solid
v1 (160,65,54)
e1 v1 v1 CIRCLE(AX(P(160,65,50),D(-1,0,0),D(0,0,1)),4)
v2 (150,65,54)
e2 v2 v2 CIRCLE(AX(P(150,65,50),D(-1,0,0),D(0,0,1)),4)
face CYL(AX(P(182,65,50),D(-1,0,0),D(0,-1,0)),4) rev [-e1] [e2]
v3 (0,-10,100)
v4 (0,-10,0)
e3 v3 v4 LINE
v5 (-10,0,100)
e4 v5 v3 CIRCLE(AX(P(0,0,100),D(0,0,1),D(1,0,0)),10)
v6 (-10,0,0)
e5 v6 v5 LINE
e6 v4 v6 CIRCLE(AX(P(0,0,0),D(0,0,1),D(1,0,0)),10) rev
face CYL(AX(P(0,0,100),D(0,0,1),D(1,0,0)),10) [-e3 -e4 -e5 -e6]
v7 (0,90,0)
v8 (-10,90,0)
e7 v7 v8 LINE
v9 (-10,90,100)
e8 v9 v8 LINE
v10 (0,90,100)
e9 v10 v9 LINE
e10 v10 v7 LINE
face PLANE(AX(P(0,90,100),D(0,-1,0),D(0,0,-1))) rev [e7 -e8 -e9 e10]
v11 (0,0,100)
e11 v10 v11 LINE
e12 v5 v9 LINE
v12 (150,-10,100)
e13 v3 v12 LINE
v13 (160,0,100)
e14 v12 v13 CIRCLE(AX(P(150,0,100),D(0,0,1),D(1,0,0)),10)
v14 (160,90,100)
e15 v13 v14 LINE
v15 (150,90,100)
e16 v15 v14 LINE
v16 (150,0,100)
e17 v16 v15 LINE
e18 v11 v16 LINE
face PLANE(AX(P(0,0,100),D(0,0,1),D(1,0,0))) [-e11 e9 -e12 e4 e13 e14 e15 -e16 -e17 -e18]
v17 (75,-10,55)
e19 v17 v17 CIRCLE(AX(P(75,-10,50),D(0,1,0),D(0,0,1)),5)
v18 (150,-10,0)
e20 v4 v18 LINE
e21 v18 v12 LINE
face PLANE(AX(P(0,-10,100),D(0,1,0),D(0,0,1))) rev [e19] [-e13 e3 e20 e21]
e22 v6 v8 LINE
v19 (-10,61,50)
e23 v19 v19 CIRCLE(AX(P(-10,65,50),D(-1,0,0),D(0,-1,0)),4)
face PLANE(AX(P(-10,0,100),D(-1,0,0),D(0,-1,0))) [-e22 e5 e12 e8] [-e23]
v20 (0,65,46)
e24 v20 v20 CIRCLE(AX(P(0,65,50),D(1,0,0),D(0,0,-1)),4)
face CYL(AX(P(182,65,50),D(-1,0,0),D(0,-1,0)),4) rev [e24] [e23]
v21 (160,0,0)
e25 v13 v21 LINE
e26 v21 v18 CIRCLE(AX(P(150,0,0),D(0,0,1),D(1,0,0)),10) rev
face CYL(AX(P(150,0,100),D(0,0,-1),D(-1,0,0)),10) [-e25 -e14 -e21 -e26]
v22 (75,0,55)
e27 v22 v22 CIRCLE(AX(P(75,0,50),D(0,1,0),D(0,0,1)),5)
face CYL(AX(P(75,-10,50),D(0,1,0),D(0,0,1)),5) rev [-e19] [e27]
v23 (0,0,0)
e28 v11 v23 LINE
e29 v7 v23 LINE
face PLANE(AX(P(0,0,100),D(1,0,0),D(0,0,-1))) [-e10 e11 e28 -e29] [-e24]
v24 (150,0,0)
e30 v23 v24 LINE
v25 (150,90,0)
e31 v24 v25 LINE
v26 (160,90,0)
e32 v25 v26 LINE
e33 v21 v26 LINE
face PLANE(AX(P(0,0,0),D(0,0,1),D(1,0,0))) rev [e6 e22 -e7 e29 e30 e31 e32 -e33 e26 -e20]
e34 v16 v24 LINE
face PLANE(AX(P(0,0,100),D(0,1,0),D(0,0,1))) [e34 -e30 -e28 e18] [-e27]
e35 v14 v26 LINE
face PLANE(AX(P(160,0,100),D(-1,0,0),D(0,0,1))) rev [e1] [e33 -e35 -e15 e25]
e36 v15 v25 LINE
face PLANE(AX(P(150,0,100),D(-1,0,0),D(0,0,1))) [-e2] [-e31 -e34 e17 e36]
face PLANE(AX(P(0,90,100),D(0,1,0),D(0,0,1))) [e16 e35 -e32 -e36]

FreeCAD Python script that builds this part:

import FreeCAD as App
import Part
import Sketcher
from FreeCAD import Vector


def edges_at(feature, points):
    """Names of the edges that pass closest to the given points."""
    edges = feature.Shape.Edges
    near = lambda p: min(range(len(edges)), key=lambda i: edges[i].distToShape(Part.Vertex(*p))[0])
    return sorted({f"Edge{near(p) + 1}" for p in points})

doc = App.newDocument("Part")
params = doc.addObject("Spreadsheet::Sheet", "Params")
for row, (alias, value) in enumerate([
    ("sketch1_width", "150 mm"),
    ("sketch1_width2", "10 mm"),
    ("sketch1_height", "90 mm"),
    ("sketch1_height2", "100 mm"),
    ("pad1_length", "100 mm"),
    ("sketch2_diameter", "10 mm"),
    ("pocket1_length", "10 mm"),
    ("fillet_radius", "10 mm"),
    ("sketch3_diameter", "8 mm"),
    ("pocket2_length", "192 mm"),
], start=1):
    params.set(f"A{row}", alias)
    params.set(f"B{row}", "=" + value)
    params.setAlias(f"B{row}", alias)

body = doc.addObject("PartDesign::Body", "Body")

# Sketch on XY plane
sketch1 = doc.addObject("Sketcher::SketchObject", "Sketch")
body.addObject(sketch1)
sketch1.AttachmentSupport = (doc.XY_Plane, [""])
sketch1.MapMode = "FlatFace"
sketch1.addGeometry(Part.LineSegment(Vector(150, 0, 0), Vector(0, 0, 0)), False)
sketch1.addGeometry(Part.LineSegment(Vector(0, 0, 0), Vector(0, 90, 0)), False)
sketch1.addGeometry(Part.LineSegment(Vector(0, 90, 0), Vector(-10, 90, 0)), False)
sketch1.addGeometry(Part.LineSegment(Vector(-10, 90, 0), Vector(-10, -10, 0)), False)
sketch1.addGeometry(Part.LineSegment(Vector(-10, -10, 0), Vector(160, -10, 0)), False)
sketch1.addGeometry(Part.LineSegment(Vector(160, -10, 0), Vector(160, 90, 0)), False)
sketch1.addGeometry(Part.LineSegment(Vector(160, 90, 0), Vector(150, 90, 0)), False)
sketch1.addGeometry(Part.LineSegment(Vector(150, 90, 0), Vector(150, 0, 0)), False)
sketch1.addConstraint(Sketcher.Constraint("Coincident", 0, 2, 1, 1))
sketch1.addConstraint(Sketcher.Constraint("Coincident", 1, 2, 2, 1))
sketch1.addConstraint(Sketcher.Constraint("Coincident", 2, 2, 3, 1))
sketch1.addConstraint(Sketcher.Constraint("Coincident", 3, 2, 4, 1))
sketch1.addConstraint(Sketcher.Constraint("Coincident", 4, 2, 5, 1))
sketch1.addConstraint(Sketcher.Constraint("Coincident", 5, 2, 6, 1))
sketch1.addConstraint(Sketcher.Constraint("Coincident", 6, 2, 7, 1))
sketch1.addConstraint(Sketcher.Constraint("Coincident", 7, 2, 0, 1))
sketch1.addConstraint(Sketcher.Constraint("Horizontal", 0))
sketch1.addConstraint(Sketcher.Constraint("Vertical", 1))
sketch1.addConstraint(Sketcher.Constraint("Horizontal", 2))
sketch1.addConstraint(Sketcher.Constraint("Vertical", 3))
sketch1.addConstraint(Sketcher.Constraint("Horizontal", 4))
sketch1.addConstraint(Sketcher.Constraint("Vertical", 5))
sketch1.addConstraint(Sketcher.Constraint("Horizontal", 6))
sketch1.addConstraint(Sketcher.Constraint("Vertical", 7))
sketch1.addConstraint(Sketcher.Constraint("Coincident", 0, 2, -1, 1))
sketch1.addConstraint(Sketcher.Constraint("Horizontal", 2, 2, 5, 2))
sketch1.addConstraint(Sketcher.Constraint("Equal", 2, 6))
sketch1.addConstraint(Sketcher.Constraint("DistanceX", 0, 2, 0, 1, 150.0))
sketch1.addConstraint(Sketcher.Constraint("DistanceX", 2, 2, 2, 1, 10.0))
sketch1.addConstraint(Sketcher.Constraint("DistanceY", 1, 1, 1, 2, 90.0))
sketch1.addConstraint(Sketcher.Constraint("DistanceY", 3, 2, 3, 1, 100.0))
sketch1.setExpression("Constraints[19]", "Params.sketch1_width")
sketch1.setExpression("Constraints[20]", "Params.sketch1_width2")
sketch1.setExpression("Constraints[21]", "Params.sketch1_height")
sketch1.setExpression("Constraints[22]", "Params.sketch1_height2")
pad1 = doc.addObject("PartDesign::Pad", "Pad")
body.addObject(pad1)
pad1.Profile = sketch1
pad1.setExpression("Length", "Params.pad1_length")

# Sketch on XZ plane
sketch2 = doc.addObject("Sketcher::SketchObject", "Sketch001")
body.addObject(sketch2)
sketch2.AttachmentSupport = (doc.XZ_Plane, [""])
sketch2.MapMode = "FlatFace"
sketch2.addGeometry(Part.Circle(Vector(75, 50, 0), Vector(0, 0, 1), 5), False)
sketch2.addConstraint(Sketcher.Constraint("Diameter", 0, 10.0))
sketch2.addConstraint(Sketcher.Constraint("DistanceX", -1, 1, 0, 3, 75.0))
sketch2.addConstraint(Sketcher.Constraint("DistanceY", -1, 1, 0, 3, 50.0))
sketch2.setExpression("Constraints[0]", "Params.sketch2_diameter")
pocket1 = doc.addObject("PartDesign::Pocket", "Pocket")
body.addObject(pocket1)
pocket1.Profile = sketch2
pocket1.setExpression("Length", "Params.pocket1_length")
pocket1.Reversed = True
doc.recompute()

fillet = doc.addObject("PartDesign::Fillet", "Fillet")
body.addObject(fillet)
fillet.Base = (pocket1, edges_at(pocket1, [(160, -10, 50), (-10, -10, 50)]))
fillet.setExpression("Radius", "Params.fillet_radius")

# Sketch on YZ plane
sketch3 = doc.addObject("Sketcher::SketchObject", "Sketch002")
body.addObject(sketch3)
sketch3.AttachmentSupport = (doc.YZ_Plane, [""])
sketch3.MapMode = "FlatFace"
sketch3.AttachmentOffset = App.Placement(Vector(0, 0, -10), App.Rotation())
sketch3.addGeometry(Part.Circle(Vector(65, 50, 0), Vector(0, 0, 1), 4), False)
sketch3.addConstraint(Sketcher.Constraint("Diameter", 0, 8.0))
sketch3.addConstraint(Sketcher.Constraint("DistanceX", -1, 1, 0, 3, 65.0))
sketch3.addConstraint(Sketcher.Constraint("DistanceY", -1, 1, 0, 3, 50.0))
sketch3.setExpression("Constraints[0]", "Params.sketch3_diameter")
pocket2 = doc.addObject("PartDesign::Pocket", "Pocket001")
body.addObject(pocket2)
pocket2.Profile = sketch3
pocket2.setExpression("Length", "Params.pocket2_length")
pocket2.Reversed = True

doc.recompute()
